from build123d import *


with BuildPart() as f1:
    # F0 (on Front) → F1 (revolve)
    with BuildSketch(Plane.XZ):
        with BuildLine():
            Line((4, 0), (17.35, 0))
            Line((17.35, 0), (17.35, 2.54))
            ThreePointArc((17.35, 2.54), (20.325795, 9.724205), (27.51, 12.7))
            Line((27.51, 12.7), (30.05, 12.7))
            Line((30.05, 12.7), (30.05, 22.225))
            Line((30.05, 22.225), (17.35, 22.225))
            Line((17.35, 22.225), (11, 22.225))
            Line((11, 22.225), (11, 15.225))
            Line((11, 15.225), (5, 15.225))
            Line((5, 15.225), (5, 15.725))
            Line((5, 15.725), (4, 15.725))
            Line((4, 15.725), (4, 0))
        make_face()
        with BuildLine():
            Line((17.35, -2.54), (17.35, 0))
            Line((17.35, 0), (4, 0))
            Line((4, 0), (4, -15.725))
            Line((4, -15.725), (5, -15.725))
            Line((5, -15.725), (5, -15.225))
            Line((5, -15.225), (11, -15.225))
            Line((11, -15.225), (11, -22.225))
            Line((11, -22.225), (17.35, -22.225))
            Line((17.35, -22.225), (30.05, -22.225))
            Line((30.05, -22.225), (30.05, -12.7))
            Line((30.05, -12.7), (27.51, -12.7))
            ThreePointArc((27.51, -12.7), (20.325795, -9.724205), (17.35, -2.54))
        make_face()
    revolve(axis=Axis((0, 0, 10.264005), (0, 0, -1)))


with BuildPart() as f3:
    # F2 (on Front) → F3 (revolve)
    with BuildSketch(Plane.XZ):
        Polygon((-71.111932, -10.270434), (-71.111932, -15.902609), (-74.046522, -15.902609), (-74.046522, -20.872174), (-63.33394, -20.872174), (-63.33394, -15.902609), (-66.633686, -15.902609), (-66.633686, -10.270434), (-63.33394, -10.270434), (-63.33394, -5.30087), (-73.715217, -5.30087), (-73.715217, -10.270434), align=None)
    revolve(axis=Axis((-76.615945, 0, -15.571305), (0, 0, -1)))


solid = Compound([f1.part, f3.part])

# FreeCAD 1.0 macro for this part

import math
import FreeCAD as App
import Part
import Sketcher
from FreeCAD import Vector
Q = App.Units.Quantity

doc = App.newDocument("Part")
body = doc.addObject("PartDesign::Body", "Body")

# Sketch on XZ plane
sketch1 = body.newObject("Sketcher::SketchObject", "Sketch")
sketch1.AttachmentSupport = (doc.getObject("XZ_Plane"), [""])
sketch1.MapMode = "FlatFace"
sketch1.addGeometry([
    Part.ArcOfCircle(Part.Circle(Vector(27.51, 2.54, 0), Vector(0, 0, 1), 10.16), math.radians(89.999998), math.radians(180.000002)),  # 0
    Part.LineSegment(Vector(27.51, 12.7, 0), Vector(30.05, 12.7, 0)),  # 1
    Part.LineSegment(Vector(30.05, 12.7, 0), Vector(30.05, 22.225, 0)),  # 2
    Part.LineSegment(Vector(30.05, 22.225, 0), Vector(11, 22.225, 0)),  # 3
    Part.LineSegment(Vector(11, 22.225, 0), Vector(11, 15.225, 0)),  # 4
    Part.LineSegment(Vector(11, 15.225, 0), Vector(5, 15.225, 0)),  # 5
    Part.LineSegment(Vector(5, 15.225, 0), Vector(5, 15.725, 0)),  # 6
    Part.LineSegment(Vector(5, 15.725, 0), Vector(4, 15.725, 0)),  # 7
    Part.LineSegment(Vector(4, 15.725, 0), Vector(4, -15.725, 0)),  # 8
    Part.LineSegment(Vector(4, -15.725, 0), Vector(5, -15.725, 0)),  # 9
    Part.LineSegment(Vector(5, -15.725, 0), Vector(5, -15.225, 0)),  # 10
    Part.LineSegment(Vector(5, -15.225, 0), Vector(11, -15.225, 0)),  # 11
    Part.LineSegment(Vector(11, -15.225, 0), Vector(11, -22.225, 0)),  # 12
    Part.LineSegment(Vector(11, -22.225, 0), Vector(30.05, -22.225, 0)),  # 13
    Part.LineSegment(Vector(30.05, -22.225, 0), Vector(30.05, -12.7, 0)),  # 14
    Part.LineSegment(Vector(30.05, -12.7, 0), Vector(27.51, -12.7, 0)),  # 15
    Part.ArcOfCircle(Part.Circle(Vector(27.51, -2.54, 0), Vector(0, 0, 1), 10.16), math.radians(179.999998), math.radians(270.000002)),  # 16
    Part.LineSegment(Vector(17.35, -2.54, 0), Vector(17.35, 2.54, 0)),  # 17
], False)
sketch1.addConstraint([
    Sketcher.Constraint("Tangent", 0, 1, 1, 1),
    Sketcher.Constraint("Coincident", 1, 2, 2, 1),
    Sketcher.Constraint("Coincident", 2, 2, 3, 1),
    Sketcher.Constraint("Coincident", 3, 2, 4, 1),
    Sketcher.Constraint("Coincident", 4, 2, 5, 1),
    Sketcher.Constraint("Coincident", 5, 2, 6, 1),
    Sketcher.Constraint("Coincident", 6, 2, 7, 1),
    Sketcher.Constraint("Coincident", 7, 2, 8, 1),
    Sketcher.Constraint("Coincident", 8, 2, 9, 1),
    Sketcher.Constraint("Coincident", 9, 2, 10, 1),
    Sketcher.Constraint("Coincident", 10, 2, 11, 1),
    Sketcher.Constraint("Coincident", 11, 2, 12, 1),
    Sketcher.Constraint("Coincident", 12, 2, 13, 1),
    Sketcher.Constraint("Coincident", 13, 2, 14, 1),
    Sketcher.Constraint("Coincident", 14, 2, 15, 1),
    Sketcher.Constraint("Tangent", 15, 2, 16, 2),
    Sketcher.Constraint("Tangent", 16, 1, 17, 1),
    Sketcher.Constraint("Tangent", 17, 2, 0, 2),
    Sketcher.Constraint("Horizontal", 1),
    Sketcher.Constraint("Vertical", 2),
    Sketcher.Constraint("Horizontal", 3),
    Sketcher.Constraint("Vertical", 4),
    Sketcher.Constraint("Horizontal", 5),
    Sketcher.Constraint("Vertical", 6),
    Sketcher.Constraint("Horizontal", 7),
    Sketcher.Constraint("Vertical", 8),
    Sketcher.Constraint("Horizontal", 9),
    Sketcher.Constraint("Vertical", 10),
    Sketcher.Constraint("Horizontal", 11),
    Sketcher.Constraint("Vertical", 12),
    Sketcher.Constraint("Horizontal", 13),
    Sketcher.Constraint("Vertical", 14),
    Sketcher.Constraint("Horizontal", 15),
    Sketcher.Constraint("Vertical", 17),
    Sketcher.Constraint("Equal", 0, 16),
    Sketcher.Constraint("Symmetric", 6, 2, 9, 2, -1),
    Sketcher.Constraint("Symmetric", 4, 2, 11, 2, -1),
    Sketcher.Constraint("Symmetric", 2, 2, 13, 2, -1),
    Sketcher.Constraint("Equal", 2, 14),
    Sketcher.Constraint("Radius", 0, Q("0.4 in")),
    Sketcher.Constraint("DistanceX", 1, 1, 1, 2, Q("0.1 in")),
    Sketcher.Constraint("DistanceY", 17, 1, 17, 2, Q("0.2 in")),
    Sketcher.Constraint("DistanceX", 3, 2, 3, 1, Q("0.75 in")),
    Sketcher.Constraint("DistanceY", 2, 1, 2, 2, Q("0.375 in")),
    Sketcher.Constraint("DistanceX", 5, 2, 5, 1, 6.0),
    Sketcher.Constraint("DistanceX", 7, 2, 7, 1, 1.0),
    Sketcher.Constraint("DistanceY", 4, 2, 4, 1, 7.0),
    Sketcher.Constraint("DistanceY", 6, 1, 6, 2, 0.5),
    Sketcher.Constraint("DistanceX", -1, 1, 0, 3, 27.51),
])
revolution = body.newObject("PartDesign::Revolution", "Revolution")
revolution.Profile = sketch1
revolution.ReferenceAxis = (sketch1, ["V_Axis"])
revolution.Angle = 360
body2 = doc.addObject("PartDesign::Body", "Body001")

# Sketch on XZ plane
sketch2 = body2.newObject("Sketcher::SketchObject", "Sketch001")
sketch2.AttachmentSupport = (doc.getObject("XZ_Plane001"), [""])
sketch2.MapMode = "FlatFace"
sketch2.addGeometry([
    Part.LineSegment(Vector(-71.111932, -10.270434, 0), Vector(-71.111932, -15.902609, 0)),  # 0
    Part.LineSegment(Vector(-71.111932, -15.902609, 0), Vector(-74.046522, -15.902609, 0)),  # 1
    Part.LineSegment(Vector(-74.046522, -15.902609, 0), Vector(-74.046522, -20.872174, 0)),  # 2
    Part.LineSegment(Vector(-74.046522, -20.872174, 0), Vector(-63.33394, -20.872174, 0)),  # 3
    Part.LineSegment(Vector(-63.33394, -20.872174, 0), Vector(-63.33394, -15.902609, 0)),  # 4
    Part.LineSegment(Vector(-63.33394, -15.902609, 0), Vector(-66.633686, -15.902609, 0)),  # 5
    Part.LineSegment(Vector(-66.633686, -15.902609, 0), Vector(-66.633686, -10.270434, 0)),  # 6
    Part.LineSegment(Vector(-66.633686, -10.270434, 0), Vector(-63.33394, -10.270434, 0)),  # 7
    Part.LineSegment(Vector(-63.33394, -10.270434, 0), Vector(-63.33394, -5.30087, 0)),  # 8
    Part.LineSegment(Vector(-63.33394, -5.30087, 0), Vector(-73.715217, -5.30087, 0)),  # 9
    Part.LineSegment(Vector(-73.715217, -5.30087, 0), Vector(-73.715217, -10.270434, 0)),  # 10
    Part.LineSegment(Vector(-73.715217, -10.270434, 0), Vector(-71.111932, -10.270434, 0)),  # 11
], False)
sketch2.addGeometry(Part.LineSegment(Vector(-76.615945, -5.30087, 0), Vector(-76.615945, -20.872174, 0)), True)  # axis
sketch2.addConstraint([
    Sketcher.Constraint("Coincident", 0, 2, 1, 1),
    Sketcher.Constraint("Coincident", 1, 2, 2, 1),
    Sketcher.Constraint("Coincident", 2, 2, 3, 1),
    Sketcher.Constraint("Coincident", 3, 2, 4, 1),
    Sketcher.Constraint("Coincident", 4, 2, 5, 1),
    Sketcher.Constraint("Coincident", 5, 2, 6, 1),
    Sketcher.Constraint("Coincident", 6, 2, 7, 1),
    Sketcher.Constraint("Coincident", 7, 2, 8, 1),
    Sketcher.Constraint("Coincident", 8, 2, 9, 1),
    Sketcher.Constraint("Coincident", 9, 2, 10, 1),
    Sketcher.Constraint("Coincident", 10, 2, 11, 1),
    Sketcher.Constraint("Coincident", 11, 2, 0, 1),
    Sketcher.Constraint("Vertical", 0),
    Sketcher.Constraint("Horizontal", 1),
    Sketcher.Constraint("Vertical", 2),
    Sketcher.Constraint("Horizontal", 3),
    Sketcher.Constraint("Vertical", 4),
    Sketcher.Constraint("Horizontal", 5),
    Sketcher.Constraint("Vertical", 6),
    Sketcher.Constraint("Horizontal", 7),
    Sketcher.Constraint("Vertical", 8),
    Sketcher.Constraint("Horizontal", 9),
    Sketcher.Constraint("Vertical", 10),
    Sketcher.Constraint("Horizontal", 11),
    Sketcher.Constraint("Vertical", 12),
    Sketcher.Constraint("Horizontal", 1, 2, 4, 2),
    Sketcher.Constraint("Horizontal", 7, 2, 10, 2),
    Sketcher.Constraint("Horizontal", 9, 2, 12, 1),
    Sketcher.Constraint("Horizontal", 3, 2, 12, 2),
    Sketcher.Constraint("Vertical", 4, 2, 7, 2),
    Sketcher.Constraint("Equal", 4, 8),
    Sketcher.Constraint("DistanceX", 1, 2, 1, 1, 2.93459),
    Sketcher.Constraint("DistanceX", 3, 1, 3, 2, 10.712582),
    Sketcher.Constraint("DistanceX", 5, 2, 5, 1, 3.299746),
    Sketcher.Constraint("DistanceX", 9, 2, 9, 1, 10.381277),
    Sketcher.Constraint("DistanceY", 0, 2, 0, 1, 5.632175),
    Sketcher.Constraint("DistanceY", 2, 2, 2, 1, 4.969565),
    Sketcher.Constraint("DistanceX", 0, 2, -1, 1, 71.111932),
    Sketcher.Constraint("DistanceY", 0, 2, -1, 1, 15.902609),
    Sketcher.Constraint("DistanceX", 12, 1, 9, 2, 2.900728),
])
revolution2 = body2.newObject("PartDesign::Revolution", "Revolution001")
revolution2.Profile = sketch2
revolution2.ReferenceAxis = (sketch2, ["Axis0"])
revolution2.Angle = 360

doc.recompute()
